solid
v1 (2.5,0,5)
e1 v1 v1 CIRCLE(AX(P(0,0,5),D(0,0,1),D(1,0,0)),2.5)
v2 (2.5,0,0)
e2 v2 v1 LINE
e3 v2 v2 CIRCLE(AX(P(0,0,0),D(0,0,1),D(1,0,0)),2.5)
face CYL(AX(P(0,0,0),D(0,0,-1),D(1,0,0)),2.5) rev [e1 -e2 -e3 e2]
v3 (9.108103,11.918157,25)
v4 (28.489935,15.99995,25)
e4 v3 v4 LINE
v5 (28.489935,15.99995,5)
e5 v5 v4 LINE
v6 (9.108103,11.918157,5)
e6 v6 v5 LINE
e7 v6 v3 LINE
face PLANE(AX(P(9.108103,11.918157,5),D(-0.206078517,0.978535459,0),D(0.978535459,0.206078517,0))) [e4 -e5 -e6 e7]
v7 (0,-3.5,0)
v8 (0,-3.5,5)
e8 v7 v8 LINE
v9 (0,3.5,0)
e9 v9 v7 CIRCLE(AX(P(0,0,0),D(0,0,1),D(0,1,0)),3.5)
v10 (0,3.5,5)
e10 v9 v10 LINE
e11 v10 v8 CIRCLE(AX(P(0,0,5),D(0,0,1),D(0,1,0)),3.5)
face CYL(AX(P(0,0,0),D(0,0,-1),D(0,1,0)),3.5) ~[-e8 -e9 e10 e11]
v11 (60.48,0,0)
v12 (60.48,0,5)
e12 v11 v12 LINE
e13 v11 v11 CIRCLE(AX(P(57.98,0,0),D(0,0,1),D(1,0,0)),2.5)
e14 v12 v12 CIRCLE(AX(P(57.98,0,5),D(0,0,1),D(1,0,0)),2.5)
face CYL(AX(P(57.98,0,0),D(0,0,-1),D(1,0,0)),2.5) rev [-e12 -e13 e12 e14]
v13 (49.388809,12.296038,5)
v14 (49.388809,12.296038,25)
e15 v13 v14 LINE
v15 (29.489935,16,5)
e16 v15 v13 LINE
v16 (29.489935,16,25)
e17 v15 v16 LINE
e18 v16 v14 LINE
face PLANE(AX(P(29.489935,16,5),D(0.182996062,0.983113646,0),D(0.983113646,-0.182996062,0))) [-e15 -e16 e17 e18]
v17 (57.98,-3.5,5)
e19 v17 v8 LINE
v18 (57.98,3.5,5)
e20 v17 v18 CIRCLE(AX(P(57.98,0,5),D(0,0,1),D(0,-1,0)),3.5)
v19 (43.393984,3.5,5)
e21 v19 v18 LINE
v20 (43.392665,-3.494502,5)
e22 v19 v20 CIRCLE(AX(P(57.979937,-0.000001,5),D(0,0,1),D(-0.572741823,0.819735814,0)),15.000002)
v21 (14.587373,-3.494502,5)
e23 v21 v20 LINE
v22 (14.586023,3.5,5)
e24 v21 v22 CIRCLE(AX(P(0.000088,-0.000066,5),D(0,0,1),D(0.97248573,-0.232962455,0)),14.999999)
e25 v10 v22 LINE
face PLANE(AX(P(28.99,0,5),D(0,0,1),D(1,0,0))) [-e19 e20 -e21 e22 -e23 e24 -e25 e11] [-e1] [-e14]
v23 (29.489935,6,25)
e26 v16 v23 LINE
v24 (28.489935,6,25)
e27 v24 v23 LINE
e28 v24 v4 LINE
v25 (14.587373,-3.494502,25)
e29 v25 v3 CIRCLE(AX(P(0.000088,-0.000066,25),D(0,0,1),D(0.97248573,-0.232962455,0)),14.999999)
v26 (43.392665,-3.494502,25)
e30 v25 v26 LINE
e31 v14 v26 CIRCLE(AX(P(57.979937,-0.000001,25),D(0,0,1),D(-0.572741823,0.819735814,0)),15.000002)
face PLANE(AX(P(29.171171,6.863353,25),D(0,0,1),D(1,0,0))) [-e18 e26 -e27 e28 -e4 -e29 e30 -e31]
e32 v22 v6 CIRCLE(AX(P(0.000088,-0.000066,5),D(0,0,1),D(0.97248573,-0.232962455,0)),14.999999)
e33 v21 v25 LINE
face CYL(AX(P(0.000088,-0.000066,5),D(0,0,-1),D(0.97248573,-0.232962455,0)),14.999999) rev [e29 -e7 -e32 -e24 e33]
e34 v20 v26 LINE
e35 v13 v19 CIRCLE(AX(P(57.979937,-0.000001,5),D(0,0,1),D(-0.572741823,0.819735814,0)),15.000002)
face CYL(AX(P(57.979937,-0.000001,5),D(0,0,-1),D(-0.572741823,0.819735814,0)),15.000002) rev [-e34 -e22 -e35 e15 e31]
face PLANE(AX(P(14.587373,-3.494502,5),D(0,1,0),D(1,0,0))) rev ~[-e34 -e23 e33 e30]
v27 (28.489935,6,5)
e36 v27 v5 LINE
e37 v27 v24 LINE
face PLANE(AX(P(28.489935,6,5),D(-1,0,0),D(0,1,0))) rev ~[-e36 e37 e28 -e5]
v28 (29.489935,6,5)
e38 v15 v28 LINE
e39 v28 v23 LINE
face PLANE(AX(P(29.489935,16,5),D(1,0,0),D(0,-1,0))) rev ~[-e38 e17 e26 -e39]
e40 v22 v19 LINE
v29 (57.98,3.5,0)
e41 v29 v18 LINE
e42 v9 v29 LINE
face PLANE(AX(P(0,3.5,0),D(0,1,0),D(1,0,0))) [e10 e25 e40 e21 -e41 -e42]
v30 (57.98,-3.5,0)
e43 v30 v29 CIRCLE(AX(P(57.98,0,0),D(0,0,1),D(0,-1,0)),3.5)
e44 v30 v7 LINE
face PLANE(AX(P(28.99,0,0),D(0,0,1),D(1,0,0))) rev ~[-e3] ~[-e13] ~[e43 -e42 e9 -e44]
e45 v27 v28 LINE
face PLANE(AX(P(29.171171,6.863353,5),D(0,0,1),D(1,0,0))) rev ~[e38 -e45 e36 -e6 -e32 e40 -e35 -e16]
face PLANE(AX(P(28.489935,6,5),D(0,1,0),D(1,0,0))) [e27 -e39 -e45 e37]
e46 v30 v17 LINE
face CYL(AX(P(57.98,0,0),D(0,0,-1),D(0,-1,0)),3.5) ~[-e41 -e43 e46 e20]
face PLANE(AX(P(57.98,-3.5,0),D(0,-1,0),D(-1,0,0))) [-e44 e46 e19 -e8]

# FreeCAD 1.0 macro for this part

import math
import FreeCAD as App
import Part
import Sketcher
from FreeCAD import Vector

doc = App.newDocument("Part")
body = doc.addObject("PartDesign::Body", "Body")

sketch1 = body.newObject("Sketcher::SketchObject", "Sketch")
sketch1.AttachmentSupport = (doc.getObject("XY_Plane"), [""])
sketch1.MapMode = "FlatFace"
sketch1.addGeometry(Part.ArcOfCircle(Part.Circle(Vector(0, 0, 0), Vector(0, 0, 1), 3.5), math.radians(90), math.radians(270)), False)
sketch1.addGeometry(Part.LineSegment(Vector(0, -3.5, 0), Vector(57.98, -3.5, 0)), False)
sketch1.addGeometry(Part.ArcOfCircle(Part.Circle(Vector(57.98, 0, 0), Vector(0, 0, 1), 3.5), math.radians(-90), math.radians(90)), False)
sketch1.addGeometry(Part.LineSegment(Vector(57.98, 3.5, 0), Vector(0, 3.5, 0)), False)
sketch1.addGeometry(Part.Circle(Vector(0, 0, 0), Vector(0, 0, 1), 2.5), False)
sketch1.addGeometry(Part.Circle(Vector(57.98, 0, 0), Vector(0, 0, 1), 2.5), False)
sketch1.addConstraint(Sketcher.Constraint("Tangent", 0, 2, 1, 1))
sketch1.addConstraint(Sketcher.Constraint("Tangent", 1, 2, 2, 1))
sketch1.addConstraint(Sketcher.Constraint("Tangent", 2, 2, 3, 1))
sketch1.addConstraint(Sketcher.Constraint("Tangent", 3, 2, 0, 1))
sketch1.addConstraint(Sketcher.Constraint("Horizontal", 1))
sketch1.addConstraint(Sketcher.Constraint("Horizontal", 3))
sketch1.addConstraint(Sketcher.Constraint("Coincident", 0, 3, -1, 1))
sketch1.addConstraint(Sketcher.Constraint("Coincident", 4, 3, -1, 1))
sketch1.addConstraint(Sketcher.Constraint("Coincident", 5, 3, 2, 3))
sketch1.addConstraint(Sketcher.Constraint("Equal", 4, 5))
sketch1.addConstraint(Sketcher.Constraint("Diameter", 4, 5.0))
sketch1.addConstraint(Sketcher.Constraint("Radius", 0, 3.5))
sketch1.addConstraint(Sketcher.Constraint("DistanceX", 1, 1, 1, 2, 57.98))
pad1 = body.newObject("PartDesign::Pad", "Pad")
pad1.Profile = sketch1
pad1.Length = 5

sketch2 = body.newObject("Sketcher::SketchObject", "Sketch001")
sketch2.AttachmentSupport = (doc.getObject("XY_Plane"), [""])
sketch2.MapMode = "FlatFace"
sketch2.AttachmentOffset = App.Placement(Vector(0, 0, 5), App.Rotation())
sketch2.addGeometry(Part.LineSegment(Vector(29.489935, 16, 0), Vector(29.489935, 6, 0)), False)
sketch2.addGeometry(Part.LineSegment(Vector(29.489935, 6, 0), Vector(28.489935, 6, 0)), False)
sketch2.addGeometry(Part.LineSegment(Vector(28.489935, 6, 0), Vector(28.489935, 15.99995, 0)), False)
sketch2.addGeometry(Part.LineSegment(Vector(28.489935, 15.99995, 0), Vector(9.108103, 11.918157, 0)), False)
sketch2.addGeometry(Part.ArcOfCircle(Part.Circle(Vector(0.000088, -0.000066, 0), Vector(0, 0, 1), 14.999999), math.radians(-13.471547), math.radians(52.612607)), False)
sketch2.addGeometry(Part.LineSegment(Vector(14.587373, -3.494502, 0), Vector(43.392665, -3.494502, 0)), False)
sketch2.addGeometry(Part.ArcOfCircle(Part.Circle(Vector(57.979937, -0.000001, 0), Vector(0, 0, 1), 15.000002), math.radians(124.941644), math.radians(193.471798)), False)
sketch2.addGeometry(Part.LineSegment(Vector(49.388809, 12.296038, 0), Vector(29.489935, 16, 0)), False)
sketch2.addConstraint(Sketcher.Constraint("Coincident", 0, 2, 1, 1))
sketch2.addConstraint(Sketcher.Constraint("Coincident", 1, 2, 2, 1))
sketch2.addConstraint(Sketcher.Constraint("Coincident", 2, 2, 3, 1))
sketch2.addConstraint(Sketcher.Constraint("Coincident", 3, 2, 4, 2))
sketch2.addConstraint(Sketcher.Constraint("Coincident", 4, 1, 5, 1))
sketch2.addConstraint(Sketcher.Constraint("Coincident", 5, 2, 6, 2))
sketch2.addConstraint(Sketcher.Constraint("Coincident", 6, 1, 7, 1))
sketch2.addConstraint(Sketcher.Constraint("Coincident", 7, 2, 0, 1))
sketch2.addConstraint(Sketcher.Constraint("Vertical", 0))
sketch2.addConstraint(Sketcher.Constraint("Horizontal", 1))
sketch2.addConstraint(Sketcher.Constraint("Vertical", 2))
sketch2.addConstraint(Sketcher.Constraint("Horizontal", 5))
sketch2.addConstraint(Sketcher.Constraint("PointOnObject", 6, 3, -1))
sketch2.addConstraint(Sketcher.Constraint("Radius", 4, 14.999999))
sketch2.addConstraint(Sketcher.Constraint("Radius", 6, 15.000002))
sketch2.addConstraint(Sketcher.Constraint("DistanceX", 1, 2, 1, 1, 1.0))
sketch2.addConstraint(Sketcher.Constraint("DistanceY", 0, 2, 0, 1, 10.0))
sketch2.addConstraint(Sketcher.Constraint("DistanceY", -1, 1, 0, 2, 6.0))
sketch2.addConstraint(Sketcher.Constraint("DistanceY", 2, 1, 2, 2, 9.99995))
sketch2.addConstraint(Sketcher.Constraint("DistanceY", 4, 1, -1, 1, 3.494502))
sketch2.addConstraint(Sketcher.Constraint("Distance", 3, 19.80698))
sketch2.addConstraint(Sketcher.Constraint("DistanceX", 5, 1, 5, 2, 28.805292))
sketch2.addConstraint(Sketcher.Constraint("DistanceX", -1, 1, 6, 1, 49.388809))
sketch2.addConstraint(Sketcher.Constraint("DistanceY", -1, 1, 6, 1, 12.296038))
sketch2.addConstraint(Sketcher.Constraint("DistanceX", 4, 3, 6, 3, 57.979849))
sketch2.addConstraint(Sketcher.Constraint("DistanceX", 3, 2, 2, 2, 19.381832))
pad2 = body.newObject("PartDesign::Pad", "Pad001")
pad2.Profile = sketch2
pad2.Length = 20

doc.recompute()
